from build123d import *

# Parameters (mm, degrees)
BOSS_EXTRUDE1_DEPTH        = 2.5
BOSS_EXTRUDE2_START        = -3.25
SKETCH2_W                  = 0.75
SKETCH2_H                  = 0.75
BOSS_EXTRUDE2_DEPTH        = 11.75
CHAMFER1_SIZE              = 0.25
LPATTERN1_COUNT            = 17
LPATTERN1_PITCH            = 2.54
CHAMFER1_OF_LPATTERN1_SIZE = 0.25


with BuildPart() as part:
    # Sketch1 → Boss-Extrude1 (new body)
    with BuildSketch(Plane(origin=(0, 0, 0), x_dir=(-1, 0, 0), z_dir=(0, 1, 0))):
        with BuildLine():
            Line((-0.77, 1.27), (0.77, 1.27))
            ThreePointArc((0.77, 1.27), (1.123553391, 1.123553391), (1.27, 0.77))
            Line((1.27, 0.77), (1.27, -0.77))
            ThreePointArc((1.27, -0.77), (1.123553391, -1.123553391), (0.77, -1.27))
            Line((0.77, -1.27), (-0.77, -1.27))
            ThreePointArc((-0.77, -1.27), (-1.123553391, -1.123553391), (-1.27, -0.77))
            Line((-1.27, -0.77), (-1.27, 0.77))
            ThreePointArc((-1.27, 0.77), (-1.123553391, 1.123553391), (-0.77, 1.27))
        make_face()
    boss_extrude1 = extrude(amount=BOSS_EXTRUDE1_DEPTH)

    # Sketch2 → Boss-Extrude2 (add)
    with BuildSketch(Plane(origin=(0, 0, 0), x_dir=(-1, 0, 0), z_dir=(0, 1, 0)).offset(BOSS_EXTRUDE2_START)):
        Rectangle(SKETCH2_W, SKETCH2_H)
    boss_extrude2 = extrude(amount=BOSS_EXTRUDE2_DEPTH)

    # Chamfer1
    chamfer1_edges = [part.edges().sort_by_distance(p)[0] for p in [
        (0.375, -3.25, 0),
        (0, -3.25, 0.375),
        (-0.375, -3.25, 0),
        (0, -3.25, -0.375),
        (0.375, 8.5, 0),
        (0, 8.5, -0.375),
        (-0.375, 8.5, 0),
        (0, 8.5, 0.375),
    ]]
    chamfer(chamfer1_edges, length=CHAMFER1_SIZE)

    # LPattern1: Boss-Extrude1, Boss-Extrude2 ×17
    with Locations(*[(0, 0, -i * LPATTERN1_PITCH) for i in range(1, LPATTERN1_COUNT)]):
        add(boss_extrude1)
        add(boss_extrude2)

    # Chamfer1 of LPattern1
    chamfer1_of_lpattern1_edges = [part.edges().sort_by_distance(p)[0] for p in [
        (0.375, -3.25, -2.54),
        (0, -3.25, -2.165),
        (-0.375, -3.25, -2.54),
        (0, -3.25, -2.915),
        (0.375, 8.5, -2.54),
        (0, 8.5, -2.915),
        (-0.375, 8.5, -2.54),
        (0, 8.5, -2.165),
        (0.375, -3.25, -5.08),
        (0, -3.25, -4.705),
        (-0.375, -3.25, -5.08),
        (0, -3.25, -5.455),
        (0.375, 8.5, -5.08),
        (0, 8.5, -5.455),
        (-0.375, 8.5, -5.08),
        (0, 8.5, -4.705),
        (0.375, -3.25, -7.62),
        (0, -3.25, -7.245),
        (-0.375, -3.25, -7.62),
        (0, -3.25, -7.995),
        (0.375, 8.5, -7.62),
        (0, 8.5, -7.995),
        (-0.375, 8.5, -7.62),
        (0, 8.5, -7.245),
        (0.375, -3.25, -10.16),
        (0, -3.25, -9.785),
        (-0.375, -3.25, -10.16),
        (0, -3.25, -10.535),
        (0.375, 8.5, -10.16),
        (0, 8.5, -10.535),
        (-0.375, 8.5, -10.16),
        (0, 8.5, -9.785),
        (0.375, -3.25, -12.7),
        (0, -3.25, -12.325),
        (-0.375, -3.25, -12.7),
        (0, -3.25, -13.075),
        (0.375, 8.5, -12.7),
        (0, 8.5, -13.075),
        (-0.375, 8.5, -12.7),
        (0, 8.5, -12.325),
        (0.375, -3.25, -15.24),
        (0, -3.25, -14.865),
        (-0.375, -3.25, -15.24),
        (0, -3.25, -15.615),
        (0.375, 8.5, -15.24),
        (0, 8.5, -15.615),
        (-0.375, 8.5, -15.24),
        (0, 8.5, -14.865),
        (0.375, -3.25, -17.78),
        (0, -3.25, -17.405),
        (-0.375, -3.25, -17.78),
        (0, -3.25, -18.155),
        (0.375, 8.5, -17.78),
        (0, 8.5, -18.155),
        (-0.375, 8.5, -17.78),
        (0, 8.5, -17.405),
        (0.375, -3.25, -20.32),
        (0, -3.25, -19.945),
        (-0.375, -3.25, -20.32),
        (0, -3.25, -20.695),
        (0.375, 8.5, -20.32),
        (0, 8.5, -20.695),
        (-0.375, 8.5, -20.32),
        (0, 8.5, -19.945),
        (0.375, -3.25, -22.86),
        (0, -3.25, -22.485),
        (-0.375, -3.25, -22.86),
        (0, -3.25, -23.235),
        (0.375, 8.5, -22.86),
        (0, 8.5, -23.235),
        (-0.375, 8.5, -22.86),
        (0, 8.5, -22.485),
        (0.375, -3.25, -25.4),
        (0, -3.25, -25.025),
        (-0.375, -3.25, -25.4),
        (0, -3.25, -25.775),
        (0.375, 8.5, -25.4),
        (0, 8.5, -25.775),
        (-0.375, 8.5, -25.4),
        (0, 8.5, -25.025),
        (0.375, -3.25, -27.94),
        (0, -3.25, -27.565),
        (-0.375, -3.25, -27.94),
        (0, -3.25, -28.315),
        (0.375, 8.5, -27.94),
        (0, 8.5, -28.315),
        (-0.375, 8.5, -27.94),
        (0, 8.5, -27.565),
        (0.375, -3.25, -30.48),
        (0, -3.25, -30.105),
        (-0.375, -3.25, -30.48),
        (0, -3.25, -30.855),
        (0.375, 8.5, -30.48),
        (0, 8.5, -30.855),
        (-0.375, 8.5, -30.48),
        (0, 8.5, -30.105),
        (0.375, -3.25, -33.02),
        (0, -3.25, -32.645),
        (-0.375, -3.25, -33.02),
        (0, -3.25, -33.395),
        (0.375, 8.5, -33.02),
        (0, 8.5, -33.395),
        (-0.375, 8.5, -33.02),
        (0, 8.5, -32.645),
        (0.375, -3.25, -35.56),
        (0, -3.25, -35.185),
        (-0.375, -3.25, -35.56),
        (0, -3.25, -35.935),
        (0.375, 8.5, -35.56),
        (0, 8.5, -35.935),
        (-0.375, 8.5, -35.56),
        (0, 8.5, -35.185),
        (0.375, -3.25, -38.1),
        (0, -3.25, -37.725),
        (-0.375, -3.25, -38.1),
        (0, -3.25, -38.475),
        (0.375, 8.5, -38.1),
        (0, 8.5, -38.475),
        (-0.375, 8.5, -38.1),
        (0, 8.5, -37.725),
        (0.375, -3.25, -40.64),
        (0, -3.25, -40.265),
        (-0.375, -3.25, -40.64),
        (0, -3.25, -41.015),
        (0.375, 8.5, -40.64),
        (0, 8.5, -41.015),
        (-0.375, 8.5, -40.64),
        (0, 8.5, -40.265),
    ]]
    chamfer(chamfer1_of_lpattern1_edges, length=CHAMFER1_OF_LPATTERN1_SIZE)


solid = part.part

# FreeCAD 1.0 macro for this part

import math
import FreeCAD as App
import Part
import Sketcher
from FreeCAD import Vector


def edges_at(feature, points):
    """Names of the edges that pass closest to the given points."""
    edges = feature.Shape.Edges
    near = lambda p: min(range(len(edges)), key=lambda i: edges[i].distToShape(Part.Vertex(*p))[0])
    return sorted({f"Edge{near(p) + 1}" for p in points})

doc = App.newDocument("Part")
body = doc.addObject("PartDesign::Body", "Body")

# Sketch on XZ plane
sketch1 = doc.addObject("Sketcher::SketchObject", "Sketch")
body.addObject(sketch1)
sketch1.AttachmentSupport = (doc.XZ_Plane, [""])
sketch1.MapMode = "FlatFace"
sketch1.addGeometry(Part.LineSegment(Vector(-0.77, 1.27, 0), Vector(0.77, 1.27, 0)), False)
sketch1.addGeometry(Part.ArcOfCircle(Part.Circle(Vector(0.77, 0.77, 0), Vector(0, 0, 1), 0.5), math.radians(0), math.radians(90)), False)
sketch1.addGeometry(Part.LineSegment(Vector(1.27, 0.77, 0), Vector(1.27, -0.77, 0)), False)
sketch1.addGeometry(Part.ArcOfCircle(Part.Circle(Vector(0.77, -0.77, 0), Vector(0, 0, 1), 0.5), math.radians(-90), math.radians(0)), False)
sketch1.addGeometry(Part.LineSegment(Vector(0.77, -1.27, 0), Vector(-0.77, -1.27, 0)), False)
sketch1.addGeometry(Part.ArcOfCircle(Part.Circle(Vector(-0.77, -0.77, 0), Vector(0, 0, 1), 0.5), math.radians(180), math.radians(270)), False)
sketch1.addGeometry(Part.LineSegment(Vector(-1.27, -0.77, 0), Vector(-1.27, 0.77, 0)), False)
sketch1.addGeometry(Part.ArcOfCircle(Part.Circle(Vector(-0.77, 0.77, 0), Vector(0, 0, 1), 0.5), math.radians(90), math.radians(180)), False)
sketch1.addConstraint(Sketcher.Constraint("Tangent", 0, 2, 1, 2))
sketch1.addConstraint(Sketcher.Constraint("Tangent", 1, 1, 2, 1))
sketch1.addConstraint(Sketcher.Constraint("Tangent", 2, 2, 3, 2))
sketch1.addConstraint(Sketcher.Constraint("Tangent", 3, 1, 4, 1))
sketch1.addConstraint(Sketcher.Constraint("Tangent", 4, 2, 5, 2))
sketch1.addConstraint(Sketcher.Constraint("Tangent", 5, 1, 6, 1))
sketch1.addConstraint(Sketcher.Constraint("Tangent", 6, 2, 7, 2))
sketch1.addConstraint(Sketcher.Constraint("Tangent", 7, 1, 0, 1))
sketch1.addConstraint(Sketcher.Constraint("Horizontal", 0))
sketch1.addConstraint(Sketcher.Constraint("Vertical", 2))
sketch1.addConstraint(Sketcher.Constraint("Horizontal", 4))
sketch1.addConstraint(Sketcher.Constraint("Vertical", 6))
sketch1.addConstraint(Sketcher.Constraint("Equal", 1, 3))
sketch1.addConstraint(Sketcher.Constraint("Equal", 3, 5))
sketch1.addConstraint(Sketcher.Constraint("Equal", 5, 7))
sketch1.addConstraint(Sketcher.Constraint("Symmetric", 1, 3, 5, 3, -1, 1))
sketch1.addConstraint(Sketcher.Constraint("Equal", 4, 2))
sketch1.addConstraint(Sketcher.Constraint("Radius", 1, 0.5))
sketch1.addConstraint(Sketcher.Constraint("DistanceX", 0, 1, 0, 2, 1.54))
pad1 = doc.addObject("PartDesign::Pad", "Pad")
body.addObject(pad1)
pad1.Profile = sketch1
pad1.Length = 2.5
pad1.Reversed = True

# Sketch on XZ plane
sketch2 = doc.addObject("Sketcher::SketchObject", "Sketch001")
body.addObject(sketch2)
sketch2.AttachmentSupport = (doc.XZ_Plane, [""])
sketch2.MapMode = "FlatFace"
sketch2.AttachmentOffset = App.Placement(Vector(0, 0, 3.25), App.Rotation())
sketch2.addGeometry(Part.LineSegment(Vector(0.375, 0.375, 0), Vector(0.375, -0.375, 0)), False)
sketch2.addGeometry(Part.LineSegment(Vector(0.375, -0.375, 0), Vector(-0.375, -0.375, 0)), False)
sketch2.addGeometry(Part.LineSegment(Vector(-0.375, -0.375, 0), Vector(-0.375, 0.375, 0)), False)
sketch2.addGeometry(Part.LineSegment(Vector(-0.375, 0.375, 0), Vector(0.375, 0.375, 0)), False)
sketch2.addConstraint(Sketcher.Constraint("Coincident", 0, 2, 1, 1))
sketch2.addConstraint(Sketcher.Constraint("Coincident", 1, 2, 2, 1))
sketch2.addConstraint(Sketcher.Constraint("Coincident", 2, 2, 3, 1))
sketch2.addConstraint(Sketcher.Constraint("Coincident", 3, 2, 0, 1))
sketch2.addConstraint(Sketcher.Constraint("Vertical", 0))
sketch2.addConstraint(Sketcher.Constraint("Horizontal", 1))
sketch2.addConstraint(Sketcher.Constraint("Vertical", 2))
sketch2.addConstraint(Sketcher.Constraint("Horizontal", 3))
sketch2.addConstraint(Sketcher.Constraint("Symmetric", 0, 2, 2, 2, -1, 1))
sketch2.addConstraint(Sketcher.Constraint("Equal", 3, 0))
sketch2.addConstraint(Sketcher.Constraint("DistanceX", 1, 2, 1, 1, 0.75))
pad2 = doc.addObject("PartDesign::Pad", "Pad001")
body.addObject(pad2)
pad2.Profile = sketch2
pad2.Length = 11.75
pad2.Reversed = True
doc.recompute()

chamfer = doc.addObject("PartDesign::Chamfer", "Chamfer")
body.addObject(chamfer)
chamfer.Base = (pad2, edges_at(pad2, [
    (0.375, -3.25, 0),
    (0, -3.25, 0.375),
    (-0.375, -3.25, 0),
    (0, -3.25, -0.375),
    (0.375, 8.5, 0),
    (0, 8.5, -0.375),
    (-0.375, 8.5, 0),
    (0, 8.5, 0.375),
]))
chamfer.Size = 0.25
doc.recompute()

linearpattern = doc.addObject("PartDesign::LinearPattern", "LinearPattern")
body.addObject(linearpattern)
linearpattern.Originals = [pad1, pad2]
linearpattern.Direction = (doc.Z_Axis, [""])
linearpattern.Mode = "offset"
linearpattern.Offset = 2.54
linearpattern.Occurrences = 17
linearpattern.Reversed = True
body.Tip = linearpattern
doc.recompute()

chamfer2 = doc.addObject("PartDesign::Chamfer", "Chamfer001")
body.addObject(chamfer2)
chamfer2.Base = (linearpattern, edges_at(linearpattern, [
    (0.375, -3.25, -2.54),
    (0, -3.25, -2.165),
    (-0.375, -3.25, -2.54),
    (0, -3.25, -2.915),
    (0.375, 8.5, -2.54),
    (0, 8.5, -2.915),
    (-0.375, 8.5, -2.54),
    (0, 8.5, -2.165),
    (0.375, -3.25, -5.08),
    (0, -3.25, -4.705),
    (-0.375, -3.25, -5.08),
    (0, -3.25, -5.455),
    (0.375, 8.5, -5.08),
    (0, 8.5, -5.455),
    (-0.375, 8.5, -5.08),
    (0, 8.5, -4.705),
    (0.375, -3.25, -7.62),
    (0, -3.25, -7.245),
    (-0.375, -3.25, -7.62),
    (0, -3.25, -7.995),
    (0.375, 8.5, -7.62),
    (0, 8.5, -7.995),
    (-0.375, 8.5, -7.62),
    (0, 8.5, -7.245),
    (0.375, -3.25, -10.16),
    (0, -3.25, -9.785),
    (-0.375, -3.25, -10.16),
    (0, -3.25, -10.535),
    (0.375, 8.5, -10.16),
    (0, 8.5, -10.535),
    (-0.375, 8.5, -10.16),
    (0, 8.5, -9.785),
    (0.375, -3.25, -12.7),
    (0, -3.25, -12.325),
    (-0.375, -3.25, -12.7),
    (0, -3.25, -13.075),
    (0.375, 8.5, -12.7),
    (0, 8.5, -13.075),
    (-0.375, 8.5, -12.7),
    (0, 8.5, -12.325),
    (0.375, -3.25, -15.24),
    (0, -3.25, -14.865),
    (-0.375, -3.25, -15.24),
    (0, -3.25, -15.615),
    (0.375, 8.5, -15.24),
    (0, 8.5, -15.615),
    (-0.375, 8.5, -15.24),
    (0, 8.5, -14.865),
    (0.375, -3.25, -17.78),
    (0, -3.25, -17.405),
    (-0.375, -3.25, -17.78),
    (0, -3.25, -18.155),
    (0.375, 8.5, -17.78),
    (0, 8.5, -18.155),
    (-0.375, 8.5, -17.78),
    (0, 8.5, -17.405),
    (0.375, -3.25, -20.32),
    (0, -3.25, -19.945),
    (-0.375, -3.25, -20.32),
    (0, -3.25, -20.695),
    (0.375, 8.5, -20.32),
    (0, 8.5, -20.695),
    (-0.375, 8.5, -20.32),
    (0, 8.5, -19.945),
    (0.375, -3.25, -22.86),
    (0, -3.25, -22.485),
    (-0.375, -3.25, -22.86),
    (0, -3.25, -23.235),
    (0.375, 8.5, -22.86),
    (0, 8.5, -23.235),
    (-0.375, 8.5, -22.86),
    (0, 8.5, -22.485),
    (0.375, -3.25, -25.4),
    (0, -3.25, -25.025),
    (-0.375, -3.25, -25.4),
    (0, -3.25, -25.775),
    (0.375, 8.5, -25.4),
    (0, 8.5, -25.775),
    (-0.375, 8.5, -25.4),
    (0, 8.5, -25.025),
    (0.375, -3.25, -27.94),
    (0, -3.25, -27.565),
    (-0.375, -3.25, -27.94),
    (0, -3.25, -28.315),
    (0.375, 8.5, -27.94),
    (0, 8.5, -28.315),
    (-0.375, 8.5, -27.94),
    (0, 8.5, -27.565),
    (0.375, -3.25, -30.48),
    (0, -3.25, -30.105),
    (-0.375, -3.25, -30.48),
    (0, -3.25, -30.855),
    (0.375, 8.5, -30.48),
    (0, 8.5, -30.855),
    (-0.375, 8.5, -30.48),
    (0, 8.5, -30.105),
    (0.375, -3.25, -33.02),
    (0, -3.25, -32.645),
    (-0.375, -3.25, -33.02),
    (0, -3.25, -33.395),
    (0.375, 8.5, -33.02),
    (0, 8.5, -33.395),
    (-0.375, 8.5, -33.02),
    (0, 8.5, -32.645),
    (0.375, -3.25, -35.56),
    (0, -3.25, -35.185),
    (-0.375, -3.25, -35.56),
    (0, -3.25, -35.935),
    (0.375, 8.5, -35.56),
    (0, 8.5, -35.935),
    (-0.375, 8.5, -35.56),
    (0, 8.5, -35.185),
    (0.375, -3.25, -38.1),
    (0, -3.25, -37.725),
    (-0.375, -3.25, -38.1),
    (0, -3.25, -38.475),
    (0.375, 8.5, -38.1),
    (0, 8.5, -38.475),
    (-0.375, 8.5, -38.1),
    (0, 8.5, -37.725),
    (0.375, -3.25, -40.64),
    (0, -3.25, -40.265),
    (-0.375, -3.25, -40.64),
    (0, -3.25, -41.015),
    (0.375, 8.5, -40.64),
    (0, 8.5, -41.015),
    (-0.375, 8.5, -40.64),
    (0, 8.5, -40.265),
]))
chamfer2.Size = 0.25

doc.recompute()
